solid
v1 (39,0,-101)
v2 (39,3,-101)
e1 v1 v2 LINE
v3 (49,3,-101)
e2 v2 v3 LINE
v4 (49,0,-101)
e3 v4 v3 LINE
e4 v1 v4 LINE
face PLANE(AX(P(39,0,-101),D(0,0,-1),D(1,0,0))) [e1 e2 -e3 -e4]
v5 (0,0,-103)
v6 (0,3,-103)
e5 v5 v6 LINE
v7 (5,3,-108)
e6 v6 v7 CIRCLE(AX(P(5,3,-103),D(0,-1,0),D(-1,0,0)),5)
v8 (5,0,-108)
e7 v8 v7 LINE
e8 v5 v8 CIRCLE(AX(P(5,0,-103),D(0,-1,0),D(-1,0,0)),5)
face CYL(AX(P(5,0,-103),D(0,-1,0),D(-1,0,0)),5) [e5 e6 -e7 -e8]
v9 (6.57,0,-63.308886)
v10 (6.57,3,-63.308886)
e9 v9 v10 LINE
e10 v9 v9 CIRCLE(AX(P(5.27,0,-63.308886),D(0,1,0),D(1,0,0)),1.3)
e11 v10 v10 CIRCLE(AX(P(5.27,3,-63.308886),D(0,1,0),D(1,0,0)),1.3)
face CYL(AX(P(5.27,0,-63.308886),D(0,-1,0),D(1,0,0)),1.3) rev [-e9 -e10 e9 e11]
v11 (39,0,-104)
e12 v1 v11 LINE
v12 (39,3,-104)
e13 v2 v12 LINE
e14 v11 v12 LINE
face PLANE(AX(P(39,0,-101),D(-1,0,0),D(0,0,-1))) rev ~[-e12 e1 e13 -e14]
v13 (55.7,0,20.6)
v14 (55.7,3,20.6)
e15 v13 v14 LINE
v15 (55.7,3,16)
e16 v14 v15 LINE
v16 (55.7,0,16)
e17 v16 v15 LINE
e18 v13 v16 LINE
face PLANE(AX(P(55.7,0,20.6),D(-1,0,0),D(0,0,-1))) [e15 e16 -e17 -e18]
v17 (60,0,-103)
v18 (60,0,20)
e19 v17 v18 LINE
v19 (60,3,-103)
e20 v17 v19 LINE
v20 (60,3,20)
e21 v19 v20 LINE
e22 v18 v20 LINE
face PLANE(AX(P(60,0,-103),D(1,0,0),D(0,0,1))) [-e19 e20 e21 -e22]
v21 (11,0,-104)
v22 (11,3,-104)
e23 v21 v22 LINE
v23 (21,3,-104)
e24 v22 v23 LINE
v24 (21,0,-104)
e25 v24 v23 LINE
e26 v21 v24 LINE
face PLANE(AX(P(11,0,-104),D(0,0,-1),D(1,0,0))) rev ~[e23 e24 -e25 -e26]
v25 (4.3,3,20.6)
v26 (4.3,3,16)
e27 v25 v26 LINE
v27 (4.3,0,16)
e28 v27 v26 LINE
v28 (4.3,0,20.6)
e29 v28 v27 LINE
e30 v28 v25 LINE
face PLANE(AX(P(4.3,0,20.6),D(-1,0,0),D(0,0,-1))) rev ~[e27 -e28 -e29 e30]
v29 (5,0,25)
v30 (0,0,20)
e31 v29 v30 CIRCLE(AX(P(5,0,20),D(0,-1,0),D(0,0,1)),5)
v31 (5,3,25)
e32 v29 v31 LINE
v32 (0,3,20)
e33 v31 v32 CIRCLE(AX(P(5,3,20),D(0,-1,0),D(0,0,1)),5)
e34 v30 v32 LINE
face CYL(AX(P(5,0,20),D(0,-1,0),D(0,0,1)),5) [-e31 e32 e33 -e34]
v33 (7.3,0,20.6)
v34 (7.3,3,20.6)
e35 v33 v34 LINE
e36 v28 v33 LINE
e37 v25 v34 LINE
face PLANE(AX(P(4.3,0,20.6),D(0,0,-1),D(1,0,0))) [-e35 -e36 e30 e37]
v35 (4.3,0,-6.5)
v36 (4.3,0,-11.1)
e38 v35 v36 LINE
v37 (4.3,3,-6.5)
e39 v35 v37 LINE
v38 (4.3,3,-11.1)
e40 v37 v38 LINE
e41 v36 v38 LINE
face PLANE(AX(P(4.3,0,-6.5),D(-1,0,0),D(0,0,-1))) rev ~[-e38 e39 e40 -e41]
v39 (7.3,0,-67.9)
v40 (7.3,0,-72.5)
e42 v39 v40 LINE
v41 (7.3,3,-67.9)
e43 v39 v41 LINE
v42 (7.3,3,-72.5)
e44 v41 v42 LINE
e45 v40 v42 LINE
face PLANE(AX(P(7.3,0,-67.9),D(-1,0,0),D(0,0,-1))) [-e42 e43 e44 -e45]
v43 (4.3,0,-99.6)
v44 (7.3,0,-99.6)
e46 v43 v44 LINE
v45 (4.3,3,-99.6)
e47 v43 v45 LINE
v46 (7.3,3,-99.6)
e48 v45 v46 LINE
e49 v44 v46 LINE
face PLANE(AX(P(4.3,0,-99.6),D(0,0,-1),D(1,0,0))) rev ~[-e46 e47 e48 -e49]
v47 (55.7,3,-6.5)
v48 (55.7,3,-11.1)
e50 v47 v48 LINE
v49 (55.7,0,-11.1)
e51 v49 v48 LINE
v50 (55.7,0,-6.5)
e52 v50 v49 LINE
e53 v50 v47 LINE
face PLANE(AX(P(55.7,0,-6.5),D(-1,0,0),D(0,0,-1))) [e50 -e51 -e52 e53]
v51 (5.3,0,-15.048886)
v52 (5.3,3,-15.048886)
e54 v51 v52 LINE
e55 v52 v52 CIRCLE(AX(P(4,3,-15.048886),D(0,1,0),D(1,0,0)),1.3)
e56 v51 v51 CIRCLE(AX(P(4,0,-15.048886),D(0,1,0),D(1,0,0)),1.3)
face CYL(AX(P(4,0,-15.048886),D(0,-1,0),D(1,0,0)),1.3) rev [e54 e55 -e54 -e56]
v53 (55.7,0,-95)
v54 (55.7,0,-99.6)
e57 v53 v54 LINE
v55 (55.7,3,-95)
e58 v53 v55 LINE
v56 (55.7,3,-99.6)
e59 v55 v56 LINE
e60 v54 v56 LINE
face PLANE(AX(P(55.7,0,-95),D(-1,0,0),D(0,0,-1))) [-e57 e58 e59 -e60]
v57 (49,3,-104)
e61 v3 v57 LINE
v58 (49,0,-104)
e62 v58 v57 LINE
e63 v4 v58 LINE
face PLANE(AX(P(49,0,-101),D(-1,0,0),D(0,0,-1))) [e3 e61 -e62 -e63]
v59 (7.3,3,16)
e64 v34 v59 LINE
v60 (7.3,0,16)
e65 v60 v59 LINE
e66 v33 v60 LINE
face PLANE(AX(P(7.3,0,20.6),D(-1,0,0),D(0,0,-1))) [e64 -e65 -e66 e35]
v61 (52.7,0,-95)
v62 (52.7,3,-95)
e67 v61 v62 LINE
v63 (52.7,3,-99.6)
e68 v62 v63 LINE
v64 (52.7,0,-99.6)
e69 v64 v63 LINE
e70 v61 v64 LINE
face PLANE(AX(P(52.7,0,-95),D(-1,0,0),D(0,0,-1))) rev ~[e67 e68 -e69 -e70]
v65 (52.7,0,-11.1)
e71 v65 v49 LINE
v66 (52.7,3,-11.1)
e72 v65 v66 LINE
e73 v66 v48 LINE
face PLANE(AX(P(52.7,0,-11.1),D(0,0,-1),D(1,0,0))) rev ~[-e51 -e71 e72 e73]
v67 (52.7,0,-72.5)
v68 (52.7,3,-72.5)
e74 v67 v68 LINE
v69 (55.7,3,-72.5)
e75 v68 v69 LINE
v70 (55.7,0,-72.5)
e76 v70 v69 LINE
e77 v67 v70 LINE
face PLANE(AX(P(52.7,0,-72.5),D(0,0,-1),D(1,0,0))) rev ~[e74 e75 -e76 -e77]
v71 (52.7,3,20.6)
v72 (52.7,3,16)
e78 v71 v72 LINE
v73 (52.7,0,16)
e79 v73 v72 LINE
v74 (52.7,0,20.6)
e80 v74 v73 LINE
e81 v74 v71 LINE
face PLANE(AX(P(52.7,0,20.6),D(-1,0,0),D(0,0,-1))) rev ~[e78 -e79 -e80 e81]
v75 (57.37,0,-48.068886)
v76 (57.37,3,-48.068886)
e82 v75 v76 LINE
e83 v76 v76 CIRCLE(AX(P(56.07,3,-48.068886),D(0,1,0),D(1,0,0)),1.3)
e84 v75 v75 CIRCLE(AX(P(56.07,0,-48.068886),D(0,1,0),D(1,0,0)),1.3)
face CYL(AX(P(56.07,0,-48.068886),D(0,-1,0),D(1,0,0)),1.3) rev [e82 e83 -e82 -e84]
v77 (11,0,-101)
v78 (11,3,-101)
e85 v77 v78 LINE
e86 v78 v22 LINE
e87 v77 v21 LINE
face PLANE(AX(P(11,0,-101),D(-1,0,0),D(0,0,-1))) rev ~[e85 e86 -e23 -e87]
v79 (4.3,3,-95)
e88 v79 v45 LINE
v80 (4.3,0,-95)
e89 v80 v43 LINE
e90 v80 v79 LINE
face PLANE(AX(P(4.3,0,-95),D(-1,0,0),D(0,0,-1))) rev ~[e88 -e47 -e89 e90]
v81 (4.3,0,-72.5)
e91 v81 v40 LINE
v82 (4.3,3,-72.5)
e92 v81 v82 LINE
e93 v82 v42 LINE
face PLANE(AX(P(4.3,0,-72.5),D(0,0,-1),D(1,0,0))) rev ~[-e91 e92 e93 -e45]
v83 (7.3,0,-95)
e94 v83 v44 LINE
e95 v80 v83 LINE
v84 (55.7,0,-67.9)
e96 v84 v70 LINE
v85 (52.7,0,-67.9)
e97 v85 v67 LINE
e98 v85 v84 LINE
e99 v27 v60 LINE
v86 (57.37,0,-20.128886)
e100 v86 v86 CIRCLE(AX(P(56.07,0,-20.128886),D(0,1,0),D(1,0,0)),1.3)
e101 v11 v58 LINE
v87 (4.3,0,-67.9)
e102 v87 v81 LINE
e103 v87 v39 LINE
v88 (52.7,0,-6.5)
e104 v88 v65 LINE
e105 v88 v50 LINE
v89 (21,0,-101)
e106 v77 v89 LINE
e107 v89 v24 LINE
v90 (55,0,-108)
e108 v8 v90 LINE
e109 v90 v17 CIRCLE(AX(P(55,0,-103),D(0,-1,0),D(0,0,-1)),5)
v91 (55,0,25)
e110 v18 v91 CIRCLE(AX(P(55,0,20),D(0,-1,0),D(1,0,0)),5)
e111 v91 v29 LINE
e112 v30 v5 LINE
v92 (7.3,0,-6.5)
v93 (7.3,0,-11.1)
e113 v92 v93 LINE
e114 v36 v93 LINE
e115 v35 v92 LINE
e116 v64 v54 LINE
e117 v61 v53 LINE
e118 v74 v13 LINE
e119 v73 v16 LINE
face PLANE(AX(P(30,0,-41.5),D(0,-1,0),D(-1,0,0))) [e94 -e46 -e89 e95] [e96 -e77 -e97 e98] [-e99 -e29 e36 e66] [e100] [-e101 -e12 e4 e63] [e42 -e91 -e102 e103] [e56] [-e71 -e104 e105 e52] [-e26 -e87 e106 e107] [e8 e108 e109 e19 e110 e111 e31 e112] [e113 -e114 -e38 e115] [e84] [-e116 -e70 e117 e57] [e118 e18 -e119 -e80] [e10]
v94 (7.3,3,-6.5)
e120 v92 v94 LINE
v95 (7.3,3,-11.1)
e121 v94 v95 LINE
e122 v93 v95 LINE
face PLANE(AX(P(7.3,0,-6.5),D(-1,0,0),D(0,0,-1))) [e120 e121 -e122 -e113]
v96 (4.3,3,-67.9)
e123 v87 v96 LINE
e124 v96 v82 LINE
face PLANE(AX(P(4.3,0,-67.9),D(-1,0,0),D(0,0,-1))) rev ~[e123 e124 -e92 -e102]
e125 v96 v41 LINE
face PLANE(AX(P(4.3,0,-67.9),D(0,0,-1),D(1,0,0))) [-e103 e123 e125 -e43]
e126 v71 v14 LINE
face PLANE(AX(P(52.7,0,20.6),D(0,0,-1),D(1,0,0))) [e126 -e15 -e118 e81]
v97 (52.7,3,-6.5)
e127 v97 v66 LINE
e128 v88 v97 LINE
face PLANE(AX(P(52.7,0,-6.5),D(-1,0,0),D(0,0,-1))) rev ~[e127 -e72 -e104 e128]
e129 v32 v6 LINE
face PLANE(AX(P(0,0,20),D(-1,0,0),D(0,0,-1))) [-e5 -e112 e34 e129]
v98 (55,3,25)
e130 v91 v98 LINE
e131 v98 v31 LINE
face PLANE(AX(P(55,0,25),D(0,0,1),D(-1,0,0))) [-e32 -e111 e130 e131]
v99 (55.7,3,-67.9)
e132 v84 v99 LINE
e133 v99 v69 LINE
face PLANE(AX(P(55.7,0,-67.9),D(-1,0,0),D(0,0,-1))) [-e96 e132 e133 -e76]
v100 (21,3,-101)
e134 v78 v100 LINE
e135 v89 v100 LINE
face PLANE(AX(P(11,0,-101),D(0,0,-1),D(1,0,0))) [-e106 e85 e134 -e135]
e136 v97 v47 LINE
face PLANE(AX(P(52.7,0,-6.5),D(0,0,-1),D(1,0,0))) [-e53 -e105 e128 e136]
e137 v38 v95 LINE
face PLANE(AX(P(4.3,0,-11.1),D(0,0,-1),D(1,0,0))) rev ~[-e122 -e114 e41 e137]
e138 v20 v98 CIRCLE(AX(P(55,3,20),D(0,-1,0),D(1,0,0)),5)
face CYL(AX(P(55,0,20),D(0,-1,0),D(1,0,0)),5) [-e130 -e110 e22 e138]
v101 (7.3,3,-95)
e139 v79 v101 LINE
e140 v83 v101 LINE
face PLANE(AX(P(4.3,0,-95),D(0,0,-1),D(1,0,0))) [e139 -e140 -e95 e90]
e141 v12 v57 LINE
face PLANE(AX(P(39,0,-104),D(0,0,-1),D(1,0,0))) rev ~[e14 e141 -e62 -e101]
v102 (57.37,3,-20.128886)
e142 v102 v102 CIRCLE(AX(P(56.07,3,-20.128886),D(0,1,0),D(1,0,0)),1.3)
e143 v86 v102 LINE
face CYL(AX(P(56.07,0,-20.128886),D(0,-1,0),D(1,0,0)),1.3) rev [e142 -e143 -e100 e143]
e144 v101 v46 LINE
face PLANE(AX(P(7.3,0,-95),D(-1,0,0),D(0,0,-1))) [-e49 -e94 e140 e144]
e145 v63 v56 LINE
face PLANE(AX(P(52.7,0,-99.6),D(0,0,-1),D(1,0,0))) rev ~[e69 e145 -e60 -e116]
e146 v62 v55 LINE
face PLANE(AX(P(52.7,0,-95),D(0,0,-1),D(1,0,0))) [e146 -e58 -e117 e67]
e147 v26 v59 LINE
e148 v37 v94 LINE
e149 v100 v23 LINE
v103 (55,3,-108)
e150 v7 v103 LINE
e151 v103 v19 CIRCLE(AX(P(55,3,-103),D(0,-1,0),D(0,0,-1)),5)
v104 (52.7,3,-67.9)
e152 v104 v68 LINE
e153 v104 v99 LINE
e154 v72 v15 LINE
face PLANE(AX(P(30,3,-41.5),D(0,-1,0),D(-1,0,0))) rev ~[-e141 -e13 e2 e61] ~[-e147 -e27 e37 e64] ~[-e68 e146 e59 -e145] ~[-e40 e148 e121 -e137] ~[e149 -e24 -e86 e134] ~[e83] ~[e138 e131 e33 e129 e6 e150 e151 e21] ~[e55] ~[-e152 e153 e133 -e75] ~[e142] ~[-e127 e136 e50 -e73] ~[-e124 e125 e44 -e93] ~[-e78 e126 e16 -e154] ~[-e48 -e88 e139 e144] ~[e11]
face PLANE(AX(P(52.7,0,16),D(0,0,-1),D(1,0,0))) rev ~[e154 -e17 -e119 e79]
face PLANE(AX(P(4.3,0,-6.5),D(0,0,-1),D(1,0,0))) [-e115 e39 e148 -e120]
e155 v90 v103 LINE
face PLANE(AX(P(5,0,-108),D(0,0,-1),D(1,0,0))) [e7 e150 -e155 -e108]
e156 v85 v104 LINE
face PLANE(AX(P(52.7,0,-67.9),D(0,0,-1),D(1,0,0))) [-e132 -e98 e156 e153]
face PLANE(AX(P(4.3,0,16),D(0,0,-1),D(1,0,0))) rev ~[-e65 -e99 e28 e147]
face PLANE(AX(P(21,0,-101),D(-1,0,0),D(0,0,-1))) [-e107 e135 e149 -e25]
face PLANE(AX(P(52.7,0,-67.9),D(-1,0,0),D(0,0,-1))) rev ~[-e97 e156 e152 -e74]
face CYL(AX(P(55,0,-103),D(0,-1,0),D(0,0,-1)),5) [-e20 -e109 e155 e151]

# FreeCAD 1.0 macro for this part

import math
import FreeCAD as App
import Part
import Sketcher
from FreeCAD import Vector
Q = App.Units.Quantity


def add_polygon(sketch, points):
    """Adds a closed chain of lines whose ends are joined by coincident constraints."""
    first, n = sketch.GeometryCount, len(points)
    for a, b in zip(points, points[1:] + points[:1]):
        sketch.addGeometry(Part.LineSegment(App.Vector(*a, 0), App.Vector(*b, 0)), False)
    for i in range(n):
        sketch.addConstraint(Sketcher.Constraint("Coincident", first + i, 2, first + (i + 1) % n, 1))

doc = App.newDocument("Part")
body = doc.addObject("PartDesign::Body", "Body")

sketch1 = doc.addObject("Sketcher::SketchObject", "Sketch")
body.addObject(sketch1)
sketch1.AttachmentSupport = (doc.XZ_Plane, [""])
sketch1.MapMode = "FlatFace"
sketch1.addGeometry(Part.LineSegment(Vector(0, -103, 0), Vector(0, 20, 0)), False)
sketch1.addGeometry(Part.ArcOfCircle(Part.Circle(Vector(5, 20, 0), Vector(0, 0, 1), 5), math.radians(90), math.radians(180)), False)
sketch1.addGeometry(Part.LineSegment(Vector(5, 25, 0), Vector(55, 25, 0)), False)
sketch1.addGeometry(Part.ArcOfCircle(Part.Circle(Vector(55, 20, 0), Vector(0, 0, 1), 5), math.radians(0), math.radians(90)), False)
sketch1.addGeometry(Part.LineSegment(Vector(60, 20, 0), Vector(60, -103, 0)), False)
sketch1.addGeometry(Part.ArcOfCircle(Part.Circle(Vector(55, -103, 0), Vector(0, 0, 1), 5), math.radians(-90), math.radians(0)), False)
sketch1.addGeometry(Part.LineSegment(Vector(55, -108, 0), Vector(5, -108, 0)), False)
sketch1.addGeometry(Part.ArcOfCircle(Part.Circle(Vector(5, -103, 0), Vector(0, 0, 1), 5), math.radians(180), math.radians(270)), False)
add_polygon(sketch1, [(52.7, 20.6), (52.7, 16), (55.7, 16), (55.7, 20.6)])
add_polygon(sketch1, [(52.7, -6.5), (52.7, -11.1), (55.7, -11.1), (55.7, -6.5)])
sketch1.addGeometry(Part.Circle(Vector(56.1, -20.1, 0), Vector(0, 0, 1), 1.3), False)
add_polygon(sketch1, [(4.3, 20.6), (4.3, 16), (7.3, 16), (7.3, 20.6)])
add_polygon(sketch1, [(4.3, -6.5), (4.3, -11.1), (7.3, -11.1), (7.3, -6.5)])
sketch1.addGeometry(Part.Circle(Vector(4, -15, 0), Vector(0, 0, 1), 1.3), False)
sketch1.addGeometry(Part.Circle(Vector(56.1, -48.1, 0), Vector(0, 0, 1), 1.3), False)
add_polygon(sketch1, [(52.7, -67.9), (52.7, -72.5), (55.7, -72.5), (55.7, -67.9)])
add_polygon(sketch1, [(52.7, -95), (52.7, -99.6), (55.7, -99.6), (55.7, -95)])
add_polygon(sketch1, [(39, -101), (39, -104), (49, -104), (49, -101)])
sketch1.addGeometry(Part.Circle(Vector(5.3, -63.3, 0), Vector(0, 0, 1), 1.3), False)
add_polygon(sketch1, [(4.3, -67.9), (4.3, -72.5), (7.3, -72.5), (7.3, -67.9)])
add_polygon(sketch1, [(11, -101), (11, -104), (21, -104), (21, -101)])
add_polygon(sketch1, [(4.3, -95), (4.3, -99.6), (7.3, -99.6), (7.3, -95)])
sketch1.addConstraint(Sketcher.Constraint("Tangent", 0, 2, 1, 2))
sketch1.addConstraint(Sketcher.Constraint("Tangent", 1, 1, 2, 1))
sketch1.addConstraint(Sketcher.Constraint("Tangent", 2, 2, 3, 2))
sketch1.addConstraint(Sketcher.Constraint("Tangent", 3, 1, 4, 1))
sketch1.addConstraint(Sketcher.Constraint("Tangent", 4, 2, 5, 2))
sketch1.addConstraint(Sketcher.Constraint("Tangent", 5, 1, 6, 1))
sketch1.addConstraint(Sketcher.Constraint("Tangent", 6, 2, 7, 2))
sketch1.addConstraint(Sketcher.Constraint("Tangent", 7, 1, 0, 1))
sketch1.addConstraint(Sketcher.Constraint("Vertical", 0))
sketch1.addConstraint(Sketcher.Constraint("Horizontal", 2))
sketch1.addConstraint(Sketcher.Constraint("Vertical", 4))
sketch1.addConstraint(Sketcher.Constraint("Horizontal", 6))
sketch1.addConstraint(Sketcher.Constraint("Vertical", 8))
sketch1.addConstraint(Sketcher.Constraint("Horizontal", 9))
sketch1.addConstraint(Sketcher.Constraint("Vertical", 10))
sketch1.addConstraint(Sketcher.Constraint("Horizontal", 11))
sketch1.addConstraint(Sketcher.Constraint("Vertical", 12))
sketch1.addConstraint(Sketcher.Constraint("Horizontal", 13))
sketch1.addConstraint(Sketcher.Constraint("Vertical", 14))
sketch1.addConstraint(Sketcher.Constraint("Horizontal", 15))
sketch1.addConstraint(Sketcher.Constraint("Vertical", 17))
sketch1.addConstraint(Sketcher.Constraint("Horizontal", 18))
sketch1.addConstraint(Sketcher.Constraint("Vertical", 19))
sketch1.addConstraint(Sketcher.Constraint("Horizontal", 20))
sketch1.addConstraint(Sketcher.Constraint("Vertical", 21))
sketch1.addConstraint(Sketcher.Constraint("Horizontal", 22))
sketch1.addConstraint(Sketcher.Constraint("Vertical", 23))
sketch1.addConstraint(Sketcher.Constraint("Horizontal", 24))
sketch1.addConstraint(Sketcher.Constraint("Vertical", 27))
sketch1.addConstraint(Sketcher.Constraint("Horizontal", 28))
sketch1.addConstraint(Sketcher.Constraint("Vertical", 29))
sketch1.addConstraint(Sketcher.Constraint("Horizontal", 30))
sketch1.addConstraint(Sketcher.Constraint("Vertical", 31))
sketch1.addConstraint(Sketcher.Constraint("Horizontal", 32))
sketch1.addConstraint(Sketcher.Constraint("Vertical", 33))
sketch1.addConstraint(Sketcher.Constraint("Horizontal", 34))
sketch1.addConstraint(Sketcher.Constraint("Vertical", 35))
sketch1.addConstraint(Sketcher.Constraint("Horizontal", 36))
sketch1.addConstraint(Sketcher.Constraint("Vertical", 37))
sketch1.addConstraint(Sketcher.Constraint("Horizontal", 38))
sketch1.addConstraint(Sketcher.Constraint("Vertical", 40))
sketch1.addConstraint(Sketcher.Constraint("Horizontal", 41))
sketch1.addConstraint(Sketcher.Constraint("Vertical", 42))
sketch1.addConstraint(Sketcher.Constraint("Horizontal", 43))
sketch1.addConstraint(Sketcher.Constraint("Vertical", 44))
sketch1.addConstraint(Sketcher.Constraint("Horizontal", 45))
sketch1.addConstraint(Sketcher.Constraint("Vertical", 46))
sketch1.addConstraint(Sketcher.Constraint("Horizontal", 47))
sketch1.addConstraint(Sketcher.Constraint("Vertical", 48))
sketch1.addConstraint(Sketcher.Constraint("Horizontal", 49))
sketch1.addConstraint(Sketcher.Constraint("Vertical", 50))
sketch1.addConstraint(Sketcher.Constraint("Horizontal", 51))
sketch1.addConstraint(Sketcher.Constraint("Equal", 1, 3))
sketch1.addConstraint(Sketcher.Constraint("Equal", 3, 5))
sketch1.addConstraint(Sketcher.Constraint("Equal", 5, 7))
sketch1.addConstraint(Sketcher.Constraint("Equal", 16, 25))
sketch1.addConstraint(Sketcher.Constraint("Equal", 25, 26))
sketch1.addConstraint(Sketcher.Constraint("Equal", 26, 39))
sketch1.addConstraint(Sketcher.Constraint("PointOnObject", 0, 2, -2))
sketch1.addConstraint(Sketcher.Constraint("Horizontal", 9, 2, 17, 2))
sketch1.addConstraint(Sketcher.Constraint("Horizontal", 11, 2, 19, 2))
sketch1.addConstraint(Sketcher.Constraint("Horizontal", 13, 2, 21, 2))
sketch1.addConstraint(Sketcher.Constraint("Horizontal", 15, 2, 23, 2))
sketch1.addConstraint(Sketcher.Constraint("Horizontal", 28, 2, 40, 2))
sketch1.addConstraint(Sketcher.Constraint("Horizontal", 30, 2, 42, 2))
sketch1.addConstraint(Sketcher.Constraint("Horizontal", 36, 2, 44, 2))
sketch1.addConstraint(Sketcher.Constraint("Horizontal", 38, 2, 46, 2))
sketch1.addConstraint(Sketcher.Constraint("Horizontal", 32, 2, 48, 2))
sketch1.addConstraint(Sketcher.Constraint("Horizontal", 34, 2, 50, 2))
sketch1.addConstraint(Sketcher.Constraint("Vertical", 16, 3, 26, 3))
sketch1.addConstraint(Sketcher.Constraint("Vertical", 11, 2, 12, 2))
sketch1.addConstraint(Sketcher.Constraint("Vertical", 10, 2, 13, 2))
sketch1.addConstraint(Sketcher.Constraint("Vertical", 20, 2, 21, 2))
sketch1.addConstraint(Sketcher.Constraint("Vertical", 19, 2, 22, 2))
sketch1.addConstraint(Sketcher.Constraint("Vertical", 15, 2, 27, 2))
sketch1.addConstraint(Sketcher.Constraint("Vertical", 14, 2, 28, 2))
sketch1.addConstraint(Sketcher.Constraint("Vertical", 30, 2, 31, 2))
sketch1.addConstraint(Sketcher.Constraint("Vertical", 29, 2, 32, 2))
sketch1.addConstraint(Sketcher.Constraint("Vertical", 24, 2, 40, 2))
sketch1.addConstraint(Sketcher.Constraint("Vertical", 23, 2, 41, 2))
sketch1.addConstraint(Sketcher.Constraint("Vertical", 43, 2, 48, 2))
sketch1.addConstraint(Sketcher.Constraint("Vertical", 42, 2, 49, 2))
sketch1.addConstraint(Sketcher.Constraint("Equal", 15, 18))
sketch1.addConstraint(Sketcher.Constraint("Equal", 38, 45))
sketch1.addConstraint(Sketcher.Constraint("Equal", 10, 12))
sketch1.addConstraint(Sketcher.Constraint("Equal", 23, 27))
sketch1.addConstraint(Sketcher.Constraint("Equal", 29, 31))
sketch1.addConstraint(Sketcher.Constraint("Equal", 51, 35))
sketch1.addConstraint(Sketcher.Constraint("Radius", 1, Q("5 mm")))
sketch1.addConstraint(Sketcher.Constraint("Diameter", 16, Q("2.6 mm")))
sketch1.addConstraint(Sketcher.Constraint("DistanceX", 2, 1, 2, 2, Q("50 mm")))
sketch1.addConstraint(Sketcher.Constraint("DistanceX", 9, 1, 9, 2, Q("3 mm")))
sketch1.addConstraint(Sketcher.Constraint("DistanceX", 36, 1, 36, 2, Q("10 mm")))
sketch1.addConstraint(Sketcher.Constraint("DistanceY", 0, 1, 0, 2, Q("123 mm")))
sketch1.addConstraint(Sketcher.Constraint("DistanceY", 8, 2, 8, 1, Q("4.6 mm")))
sketch1.addConstraint(Sketcher.Constraint("DistanceY", -1, 1, 1, 3, Q("20 mm")))
sketch1.addConstraint(Sketcher.Constraint("DistanceX", -1, 1, 25, 3, Q("4 mm")))
sketch1.addConstraint(Sketcher.Constraint("DistanceY", -1, 1, 8, 2, Q("16 mm")))
sketch1.addConstraint(Sketcher.Constraint("DistanceY", 33, 2, -1, 1, Q("95 mm")))
sketch1.addConstraint(Sketcher.Constraint("DistanceX", -1, 1, 35, 2, Q("39 mm")))
sketch1.addConstraint(Sketcher.Constraint("DistanceY", 35, 2, -1, 1, Q("104 mm")))
sketch1.addConstraint(Sketcher.Constraint("DistanceX", -1, 1, 44, 2, Q("11 mm")))
sketch1.addConstraint(Sketcher.Constraint("DistanceX", -1, 1, 8, 2, Q("52.7 mm")))
sketch1.addConstraint(Sketcher.Constraint("DistanceY", 12, 2, -1, 1, Q("11.1 mm")))
sketch1.addConstraint(Sketcher.Constraint("DistanceX", -1, 1, 17, 2, Q("4.3 mm")))
sketch1.addConstraint(Sketcher.Constraint("DistanceY", 27, 2, -1, 1, Q("72.5 mm")))
sketch1.addConstraint(Sketcher.Constraint("DistanceX", 39, 3, 26, 3, Q("50.8 mm")))
sketch1.addConstraint(Sketcher.Constraint("DistanceX", -1, 1, 16, 3, Q("56.07 mm")))
sketch1.addConstraint(Sketcher.Constraint("DistanceY", 16, 3, 25, 3, Q("5.08 mm")))
sketch1.addConstraint(Sketcher.Constraint("DistanceY", 26, 3, 16, 3, Q("27.94 mm")))
sketch1.addConstraint(Sketcher.Constraint("DistanceY", 39, 3, 25, 3, Q("48.26 mm")))
sketch1.addConstraint(Sketcher.Constraint("DistanceY", 16, 3, -1, 1, Q("20.128886 mm")))
pad1 = doc.addObject("PartDesign::Pad", "Pad")
body.addObject(pad1)
pad1.Profile = sketch1
pad1.Length = 3
pad1.Reversed = True

doc.recompute()
